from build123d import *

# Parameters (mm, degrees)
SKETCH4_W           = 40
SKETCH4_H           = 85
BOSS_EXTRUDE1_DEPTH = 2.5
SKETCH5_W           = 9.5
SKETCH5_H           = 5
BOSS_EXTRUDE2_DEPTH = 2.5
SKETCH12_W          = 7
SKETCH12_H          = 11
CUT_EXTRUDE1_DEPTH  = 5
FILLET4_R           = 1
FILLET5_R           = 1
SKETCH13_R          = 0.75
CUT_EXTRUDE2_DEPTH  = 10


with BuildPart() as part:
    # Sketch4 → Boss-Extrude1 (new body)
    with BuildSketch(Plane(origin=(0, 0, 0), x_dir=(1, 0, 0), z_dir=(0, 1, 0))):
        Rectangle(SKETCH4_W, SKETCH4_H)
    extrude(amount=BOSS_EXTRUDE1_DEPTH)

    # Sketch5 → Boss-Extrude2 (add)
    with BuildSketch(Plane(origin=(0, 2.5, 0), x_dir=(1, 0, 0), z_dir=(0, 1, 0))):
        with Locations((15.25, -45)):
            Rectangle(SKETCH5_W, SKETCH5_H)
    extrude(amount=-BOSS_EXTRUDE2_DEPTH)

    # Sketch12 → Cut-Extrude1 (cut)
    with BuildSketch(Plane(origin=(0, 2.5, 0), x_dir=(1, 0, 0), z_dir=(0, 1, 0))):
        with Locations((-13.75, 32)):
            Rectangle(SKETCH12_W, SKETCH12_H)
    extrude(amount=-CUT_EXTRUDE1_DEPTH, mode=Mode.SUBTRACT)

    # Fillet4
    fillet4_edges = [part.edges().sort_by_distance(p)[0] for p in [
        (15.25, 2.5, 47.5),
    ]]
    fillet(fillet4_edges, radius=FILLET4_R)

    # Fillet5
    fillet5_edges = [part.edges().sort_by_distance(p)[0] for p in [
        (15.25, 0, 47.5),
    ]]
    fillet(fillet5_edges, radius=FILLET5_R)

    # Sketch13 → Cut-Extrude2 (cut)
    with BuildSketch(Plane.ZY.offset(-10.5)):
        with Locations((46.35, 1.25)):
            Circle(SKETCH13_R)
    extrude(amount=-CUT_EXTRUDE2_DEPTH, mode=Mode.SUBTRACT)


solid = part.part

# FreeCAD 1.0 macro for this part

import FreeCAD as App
import Part
import Sketcher
Q = App.Units.Quantity


def edges_at(feature, points):
    """Names of the edges that pass closest to the given points."""
    edges = feature.Shape.Edges
    near = lambda p: min(range(len(edges)), key=lambda i: edges[i].distToShape(Part.Vertex(*p))[0])
    return sorted({f"Edge{near(p) + 1}" for p in points})


def add_polygon(sketch, points):
    """Adds a closed chain of lines whose ends are joined by coincident constraints."""
    first, n = sketch.GeometryCount, len(points)
    for a, b in zip(points, points[1:] + points[:1]):
        sketch.addGeometry(Part.LineSegment(App.Vector(*a, 0), App.Vector(*b, 0)), False)
    for i in range(n):
        sketch.addConstraint(Sketcher.Constraint("Coincident", first + i, 2, first + (i + 1) % n, 1))

doc = App.newDocument("Part")
body = doc.addObject("PartDesign::Body", "Body")

# Sketch on XZ plane
sketch1 = body.newObject("Sketcher::SketchObject", "Sketch")
sketch1.AttachmentSupport = (doc.getObject("XZ_Plane"), [""])
sketch1.MapMode = "FlatFace"
add_polygon(sketch1, [(-20, -42), (-20, 42), (20, 42), (20, -42)])  # lines 0-3
sketch1.addConstraint(Sketcher.Constraint("Vertical", 0))
sketch1.addConstraint(Sketcher.Constraint("Horizontal", 1))
sketch1.addConstraint(Sketcher.Constraint("Vertical", 2))
sketch1.addConstraint(Sketcher.Constraint("Horizontal", 3))
sketch1.addConstraint(Sketcher.Constraint("Symmetric", 0, 2, 2, 2, -1, 1))
sketch1.addConstraint(Sketcher.Constraint("DistanceX", 1, 1, 1, 2, Q("40 mm")))
sketch1.addConstraint(Sketcher.Constraint("DistanceY", 0, 1, 0, 2, Q("85 mm")))
pad1 = body.newObject("PartDesign::Pad", "Pad")
pad1.Profile = sketch1
pad1.Length = 2.5
pad1.Reversed = True

# Sketch on XZ plane
sketch2 = body.newObject("Sketcher::SketchObject", "Sketch001")
sketch2.AttachmentSupport = (doc.getObject("XZ_Plane"), [""])
sketch2.MapMode = "FlatFace"
sketch2.AttachmentOffset = App.Placement(App.Vector(0, 0, -2.5), App.Rotation())
add_polygon(sketch2, [(10, 42), (10, 48), (20, 48), (20, 42)])  # lines 0-3
sketch2.addConstraint(Sketcher.Constraint("Vertical", 0))
sketch2.addConstraint(Sketcher.Constraint("Horizontal", 1))
sketch2.addConstraint(Sketcher.Constraint("Vertical", 2))
sketch2.addConstraint(Sketcher.Constraint("Horizontal", 3))
sketch2.addConstraint(Sketcher.Constraint("DistanceY", 0, 1, 0, 2, Q("5 mm")))
sketch2.addConstraint(Sketcher.Constraint("DistanceX", 1, 1, 1, 2, Q("9.5 mm")))
sketch2.addConstraint(Sketcher.Constraint("DistanceX", -1, 1, 1, 2, Q("20 mm")))
sketch2.addConstraint(Sketcher.Constraint("DistanceY", -1, 1, 0, 2, Q("47.5 mm")))
pad2 = body.newObject("PartDesign::Pad", "Pad001")
pad2.Profile = sketch2
pad2.Length = 2.5

# Sketch on XZ plane
sketch3 = body.newObject("Sketcher::SketchObject", "Sketch002")
sketch3.AttachmentSupport = (doc.getObject("XZ_Plane"), [""])
sketch3.MapMode = "FlatFace"
sketch3.AttachmentOffset = App.Placement(App.Vector(0, 0, -2.5), App.Rotation())
add_polygon(sketch3, [(-17, -38), (-17, -26), (-10, -26), (-10, -38)])  # lines 0-3
sketch3.addConstraint(Sketcher.Constraint("Vertical", 0))
sketch3.addConstraint(Sketcher.Constraint("Horizontal", 1))
sketch3.addConstraint(Sketcher.Constraint("Vertical", 2))
sketch3.addConstraint(Sketcher.Constraint("Horizontal", 3))
sketch3.addConstraint(Sketcher.Constraint("DistanceX", 1, 1, 1, 2, Q("7 mm")))
sketch3.addConstraint(Sketcher.Constraint("DistanceY", 0, 1, 0, 2, Q("11 mm")))
sketch3.addConstraint(Sketcher.Constraint("DistanceY", 0, 2, -1, 1, Q("26.5 mm")))
sketch3.addConstraint(Sketcher.Constraint("DistanceX", 0, 2, -1, 1, Q("17.25 mm")))
pocket1 = body.newObject("PartDesign::Pocket", "Pocket")
pocket1.Profile = sketch3
pocket1.Length = 5
pocket1.Reversed = True
doc.recompute()

fillet = body.newObject("PartDesign::Fillet", "Fillet")
fillet.Base = (pocket1, edges_at(pocket1, [(15.25, 2.5, 47.5)]))
fillet.Radius = 1
doc.recompute()

fillet2 = body.newObject("PartDesign::Fillet", "Fillet001")
fillet2.Base = (fillet, edges_at(fillet, [(15.25, 0, 47.5)]))
fillet2.Radius = 1

# Sketch on YZ plane
sketch4 = body.newObject("Sketcher::SketchObject", "Sketch003")
sketch4.AttachmentSupport = (doc.getObject("YZ_Plane"), [""])
sketch4.MapMode = "FlatFace"
sketch4.AttachmentOffset = App.Placement(App.Vector(0, 0, 10.5), App.Rotation())
sketch4.addGeometry(Part.Circle(App.Vector(1.2, 46.4, 0), App.Vector(0, 0, 1), 0.8), False)
sketch4.addConstraint(Sketcher.Constraint("Diameter", 0, Q("1.5 mm")))
sketch4.addConstraint(Sketcher.Constraint("DistanceX", -1, 1, 0, 3, Q("1.25 mm")))
sketch4.addConstraint(Sketcher.Constraint("DistanceY", -1, 1, 0, 3, Q("46.35 mm")))
pocket2 = body.newObject("PartDesign::Pocket", "Pocket001")
pocket2.Profile = sketch4
pocket2.Length = 10
pocket2.Reversed = True

doc.recompute()
